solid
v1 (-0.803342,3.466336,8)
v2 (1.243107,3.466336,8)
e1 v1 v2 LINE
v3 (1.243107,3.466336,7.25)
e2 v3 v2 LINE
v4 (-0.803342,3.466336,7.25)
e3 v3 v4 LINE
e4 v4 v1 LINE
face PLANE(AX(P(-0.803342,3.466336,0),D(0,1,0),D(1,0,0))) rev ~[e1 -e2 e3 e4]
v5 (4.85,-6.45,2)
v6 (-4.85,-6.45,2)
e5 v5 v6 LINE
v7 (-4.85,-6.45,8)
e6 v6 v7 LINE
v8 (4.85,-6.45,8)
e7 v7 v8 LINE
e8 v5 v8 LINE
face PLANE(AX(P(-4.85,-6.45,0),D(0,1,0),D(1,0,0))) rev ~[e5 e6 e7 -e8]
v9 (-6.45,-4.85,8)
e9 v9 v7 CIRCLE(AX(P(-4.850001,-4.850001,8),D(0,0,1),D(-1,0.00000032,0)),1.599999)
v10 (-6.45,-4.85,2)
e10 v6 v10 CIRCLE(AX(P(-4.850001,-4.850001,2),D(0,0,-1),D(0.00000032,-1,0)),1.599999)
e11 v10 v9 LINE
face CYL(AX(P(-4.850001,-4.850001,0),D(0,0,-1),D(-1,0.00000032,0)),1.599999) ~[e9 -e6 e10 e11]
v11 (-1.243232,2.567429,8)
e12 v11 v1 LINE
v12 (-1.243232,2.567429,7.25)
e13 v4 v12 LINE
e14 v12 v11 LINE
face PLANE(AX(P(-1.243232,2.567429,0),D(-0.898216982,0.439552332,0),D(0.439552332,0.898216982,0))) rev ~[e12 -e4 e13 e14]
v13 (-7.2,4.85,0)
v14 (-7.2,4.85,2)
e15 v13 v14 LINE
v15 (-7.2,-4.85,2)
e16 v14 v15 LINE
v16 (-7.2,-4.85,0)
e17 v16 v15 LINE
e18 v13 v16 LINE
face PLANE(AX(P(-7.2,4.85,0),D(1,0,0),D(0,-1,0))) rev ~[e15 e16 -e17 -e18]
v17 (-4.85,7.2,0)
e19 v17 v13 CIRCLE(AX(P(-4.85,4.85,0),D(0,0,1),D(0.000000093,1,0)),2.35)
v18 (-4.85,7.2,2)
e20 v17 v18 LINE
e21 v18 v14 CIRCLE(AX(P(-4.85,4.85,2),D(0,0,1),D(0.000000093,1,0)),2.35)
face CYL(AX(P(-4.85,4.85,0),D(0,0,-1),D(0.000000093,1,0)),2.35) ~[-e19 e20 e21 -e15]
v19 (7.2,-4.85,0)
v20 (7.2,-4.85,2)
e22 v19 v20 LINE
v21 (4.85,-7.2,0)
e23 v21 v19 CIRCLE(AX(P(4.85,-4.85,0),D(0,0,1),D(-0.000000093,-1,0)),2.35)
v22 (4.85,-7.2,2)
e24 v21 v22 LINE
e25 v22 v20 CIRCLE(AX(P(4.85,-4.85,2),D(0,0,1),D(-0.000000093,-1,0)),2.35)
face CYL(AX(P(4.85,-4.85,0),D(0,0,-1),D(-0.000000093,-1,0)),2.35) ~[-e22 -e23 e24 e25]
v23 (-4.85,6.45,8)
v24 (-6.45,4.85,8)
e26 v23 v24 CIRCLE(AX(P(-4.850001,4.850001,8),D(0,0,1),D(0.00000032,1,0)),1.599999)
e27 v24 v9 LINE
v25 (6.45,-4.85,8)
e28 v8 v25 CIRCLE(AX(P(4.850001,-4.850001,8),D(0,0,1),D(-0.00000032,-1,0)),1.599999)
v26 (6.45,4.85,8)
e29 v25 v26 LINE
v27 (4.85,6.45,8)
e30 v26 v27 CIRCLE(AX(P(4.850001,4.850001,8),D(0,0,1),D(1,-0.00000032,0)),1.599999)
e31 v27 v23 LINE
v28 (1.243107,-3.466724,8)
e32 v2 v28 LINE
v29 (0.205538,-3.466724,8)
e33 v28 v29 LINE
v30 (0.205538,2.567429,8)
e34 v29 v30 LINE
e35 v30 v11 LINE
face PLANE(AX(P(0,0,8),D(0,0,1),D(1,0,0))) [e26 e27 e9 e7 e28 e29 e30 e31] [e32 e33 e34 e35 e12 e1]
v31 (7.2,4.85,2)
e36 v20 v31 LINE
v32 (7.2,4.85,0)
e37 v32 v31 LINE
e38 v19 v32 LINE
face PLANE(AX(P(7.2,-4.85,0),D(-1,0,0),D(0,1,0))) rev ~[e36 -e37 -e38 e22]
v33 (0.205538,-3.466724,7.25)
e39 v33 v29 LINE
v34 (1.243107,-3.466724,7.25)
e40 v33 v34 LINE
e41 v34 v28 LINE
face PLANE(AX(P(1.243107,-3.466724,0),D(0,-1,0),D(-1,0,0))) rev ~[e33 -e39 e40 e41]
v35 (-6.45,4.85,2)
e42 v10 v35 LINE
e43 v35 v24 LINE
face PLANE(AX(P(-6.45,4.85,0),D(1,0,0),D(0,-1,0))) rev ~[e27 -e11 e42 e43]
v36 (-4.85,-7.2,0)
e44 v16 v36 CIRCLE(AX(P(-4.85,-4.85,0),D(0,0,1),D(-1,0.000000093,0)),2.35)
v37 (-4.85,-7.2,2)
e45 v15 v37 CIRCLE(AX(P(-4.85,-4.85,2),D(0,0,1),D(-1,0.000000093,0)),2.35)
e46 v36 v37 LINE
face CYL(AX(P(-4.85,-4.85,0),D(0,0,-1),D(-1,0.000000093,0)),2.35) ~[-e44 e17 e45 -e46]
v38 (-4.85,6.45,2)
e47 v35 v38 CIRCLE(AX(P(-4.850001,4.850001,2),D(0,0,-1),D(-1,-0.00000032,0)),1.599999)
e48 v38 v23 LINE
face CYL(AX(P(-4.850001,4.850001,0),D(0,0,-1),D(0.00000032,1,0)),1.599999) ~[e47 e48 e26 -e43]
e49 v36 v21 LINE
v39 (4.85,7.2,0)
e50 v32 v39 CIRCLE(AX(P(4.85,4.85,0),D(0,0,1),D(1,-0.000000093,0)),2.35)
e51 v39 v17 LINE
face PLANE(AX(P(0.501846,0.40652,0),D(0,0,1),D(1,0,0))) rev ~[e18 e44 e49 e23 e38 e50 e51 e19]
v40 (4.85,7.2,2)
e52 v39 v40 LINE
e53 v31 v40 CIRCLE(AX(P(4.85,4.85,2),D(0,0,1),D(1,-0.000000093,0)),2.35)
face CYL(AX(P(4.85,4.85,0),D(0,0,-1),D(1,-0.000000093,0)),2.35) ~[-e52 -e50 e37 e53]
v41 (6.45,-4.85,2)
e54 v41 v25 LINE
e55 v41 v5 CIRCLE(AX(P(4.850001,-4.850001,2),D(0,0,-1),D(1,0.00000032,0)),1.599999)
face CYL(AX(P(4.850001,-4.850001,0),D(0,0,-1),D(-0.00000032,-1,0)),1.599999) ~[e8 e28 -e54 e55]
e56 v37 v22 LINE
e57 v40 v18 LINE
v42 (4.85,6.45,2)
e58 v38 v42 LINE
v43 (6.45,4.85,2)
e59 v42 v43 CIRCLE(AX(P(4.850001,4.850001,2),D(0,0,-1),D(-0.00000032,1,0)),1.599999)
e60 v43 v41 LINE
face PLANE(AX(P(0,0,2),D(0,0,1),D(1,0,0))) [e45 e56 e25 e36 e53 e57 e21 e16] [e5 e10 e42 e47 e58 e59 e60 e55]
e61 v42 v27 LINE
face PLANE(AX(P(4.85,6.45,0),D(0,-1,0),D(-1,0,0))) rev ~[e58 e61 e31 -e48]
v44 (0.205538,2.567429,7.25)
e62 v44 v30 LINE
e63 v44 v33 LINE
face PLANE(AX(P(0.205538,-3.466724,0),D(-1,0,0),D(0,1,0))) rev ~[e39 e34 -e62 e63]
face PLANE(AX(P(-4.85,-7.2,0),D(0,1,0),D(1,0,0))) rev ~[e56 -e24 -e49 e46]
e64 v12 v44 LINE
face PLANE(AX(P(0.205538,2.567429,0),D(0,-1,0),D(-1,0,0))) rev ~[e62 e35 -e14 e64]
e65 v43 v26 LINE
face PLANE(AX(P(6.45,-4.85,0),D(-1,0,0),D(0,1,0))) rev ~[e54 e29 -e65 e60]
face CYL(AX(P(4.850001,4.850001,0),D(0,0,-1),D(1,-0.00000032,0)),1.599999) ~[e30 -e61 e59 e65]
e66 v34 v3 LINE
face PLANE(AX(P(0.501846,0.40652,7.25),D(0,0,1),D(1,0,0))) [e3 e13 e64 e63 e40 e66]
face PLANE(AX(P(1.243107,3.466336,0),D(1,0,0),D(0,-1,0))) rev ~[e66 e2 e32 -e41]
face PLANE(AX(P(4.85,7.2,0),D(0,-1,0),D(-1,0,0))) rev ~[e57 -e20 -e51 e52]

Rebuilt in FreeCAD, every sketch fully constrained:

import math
import FreeCAD as App
import Part
import Sketcher
Q = App.Units.Quantity

doc = App.newDocument("Part")
params = doc.addObject("Spreadsheet::Sheet", "Params")
for row, (alias, value) in enumerate([
    ("sketch1_radius", "1.599999 mm"),
    ("sketch1_radius2", "2.35 mm"),
    ("sketch1_width", "9.7 mm"),
    ("pad1_length", "2 mm"),
    ("sketch2_radius", "1.599999 mm"),
    ("sketch2_width", "9.7 mm"),
    ("pad2_length", "8 mm"),
    ("pad3_length", "7.25 mm"),
], start=1):
    params.set(f"A{row}", alias)
    params.set(f"B{row}", "=" + value)
    params.setAlias(f"B{row}", alias)

body = doc.addObject("PartDesign::Body", "Body")

sketch1 = doc.addObject("Sketcher::SketchObject", "Sketch")
body.addObject(sketch1)
sketch1.AttachmentSupport = (doc.XY_Plane, [""])
sketch1.MapMode = "FlatFace"
sketch1.addGeometry(Part.LineSegment(App.Vector(4.8, 7.2, 0), App.Vector(-4.8, 7.2, 0)), False)
sketch1.addGeometry(Part.ArcOfCircle(Part.Circle(App.Vector(-4.9, 4.9, 0), App.Vector(0, 0, 1), 2.3), math.radians(90), math.radians(180)), False)
sketch1.addGeometry(Part.LineSegment(App.Vector(-7.2, 4.8, 0), App.Vector(-7.2, -4.8, 0)), False)
sketch1.addGeometry(Part.ArcOfCircle(Part.Circle(App.Vector(-4.9, -4.9, 0), App.Vector(0, 0, 1), 2.3), math.radians(180), math.radians(270)), False)
sketch1.addGeometry(Part.LineSegment(App.Vector(-4.8, -7.2, 0), App.Vector(4.8, -7.2, 0)), False)
sketch1.addGeometry(Part.ArcOfCircle(Part.Circle(App.Vector(4.9, -4.9, 0), App.Vector(0, 0, 1), 2.3), math.radians(-90), math.radians(0)), False)
sketch1.addGeometry(Part.LineSegment(App.Vector(7.2, -4.8, 0), App.Vector(7.2, 4.8, 0)), False)
sketch1.addGeometry(Part.ArcOfCircle(Part.Circle(App.Vector(4.9, 4.9, 0), App.Vector(0, 0, 1), 2.3), math.radians(0), math.radians(90)), False)
sketch1.addGeometry(Part.LineSegment(App.Vector(6.5, 4.8, 0), App.Vector(6.5, -4.8, 0)), False)
sketch1.addGeometry(Part.ArcOfCircle(Part.Circle(App.Vector(4.9, -4.9, 0), App.Vector(0, 0, 1), 1.6), math.radians(-90), math.radians(0)), False)
sketch1.addGeometry(Part.LineSegment(App.Vector(4.8, -6.5, 0), App.Vector(-4.8, -6.5, 0)), False)
sketch1.addGeometry(Part.ArcOfCircle(Part.Circle(App.Vector(-4.9, -4.9, 0), App.Vector(0, 0, 1), 1.6), math.radians(180), math.radians(270)), False)
sketch1.addGeometry(Part.LineSegment(App.Vector(-6.5, -4.8, 0), App.Vector(-6.5, 4.8, 0)), False)
sketch1.addGeometry(Part.ArcOfCircle(Part.Circle(App.Vector(-4.9, 4.9, 0), App.Vector(0, 0, 1), 1.6), math.radians(90), math.radians(180)), False)
sketch1.addGeometry(Part.LineSegment(App.Vector(-4.8, 6.5, 0), App.Vector(4.8, 6.5, 0)), False)
sketch1.addGeometry(Part.ArcOfCircle(Part.Circle(App.Vector(4.9, 4.9, 0), App.Vector(0, 0, 1), 1.6), math.radians(0), math.radians(90)), False)
sketch1.addConstraint(Sketcher.Constraint("Tangent", 0, 2, 1, 1))
sketch1.addConstraint(Sketcher.Constraint("Tangent", 1, 2, 2, 1))
sketch1.addConstraint(Sketcher.Constraint("Tangent", 2, 2, 3, 1))
sketch1.addConstraint(Sketcher.Constraint("Tangent", 3, 2, 4, 1))
sketch1.addConstraint(Sketcher.Constraint("Tangent", 4, 2, 5, 1))
sketch1.addConstraint(Sketcher.Constraint("Tangent", 5, 2, 6, 1))
sketch1.addConstraint(Sketcher.Constraint("Tangent", 6, 2, 7, 1))
sketch1.addConstraint(Sketcher.Constraint("Tangent", 7, 2, 0, 1))
sketch1.addConstraint(Sketcher.Constraint("Tangent", 8, 2, 9, 2))
sketch1.addConstraint(Sketcher.Constraint("Tangent", 9, 1, 10, 1))
sketch1.addConstraint(Sketcher.Constraint("Tangent", 10, 2, 11, 2))
sketch1.addConstraint(Sketcher.Constraint("Tangent", 11, 1, 12, 1))
sketch1.addConstraint(Sketcher.Constraint("Tangent", 12, 2, 13, 2))
sketch1.addConstraint(Sketcher.Constraint("Tangent", 13, 1, 14, 1))
sketch1.addConstraint(Sketcher.Constraint("Tangent", 14, 2, 15, 2))
sketch1.addConstraint(Sketcher.Constraint("Tangent", 15, 1, 8, 1))
sketch1.addConstraint(Sketcher.Constraint("Horizontal", 0))
sketch1.addConstraint(Sketcher.Constraint("Vertical", 2))
sketch1.addConstraint(Sketcher.Constraint("Horizontal", 4))
sketch1.addConstraint(Sketcher.Constraint("Vertical", 6))
sketch1.addConstraint(Sketcher.Constraint("Vertical", 8))
sketch1.addConstraint(Sketcher.Constraint("Horizontal", 10))
sketch1.addConstraint(Sketcher.Constraint("Vertical", 12))
sketch1.addConstraint(Sketcher.Constraint("Horizontal", 14))
sketch1.addConstraint(Sketcher.Constraint("Coincident", 9, 3, 5, 3))
sketch1.addConstraint(Sketcher.Constraint("Coincident", 11, 3, 3, 3))
sketch1.addConstraint(Sketcher.Constraint("Coincident", 13, 3, 1, 3))
sketch1.addConstraint(Sketcher.Constraint("Equal", 1, 3))
sketch1.addConstraint(Sketcher.Constraint("Equal", 3, 5))
sketch1.addConstraint(Sketcher.Constraint("Equal", 5, 7))
sketch1.addConstraint(Sketcher.Constraint("Equal", 13, 15))
sketch1.addConstraint(Sketcher.Constraint("Symmetric", 1, 3, 5, 3, -1, 1))
sketch1.addConstraint(Sketcher.Constraint("Equal", 14, 2))
sketch1.addConstraint(Sketcher.Constraint("Radius", 9, Q("1.599999 mm")))
sketch1.addConstraint(Sketcher.Constraint("Radius", 1, Q("2.35 mm")))
sketch1.addConstraint(Sketcher.Constraint("DistanceX", 0, 2, 0, 1, Q("9.7 mm")))
sketch1.setExpression("Constraints[33]", "Params.sketch1_radius")
sketch1.setExpression("Constraints[34]", "Params.sketch1_radius2")
sketch1.setExpression("Constraints[35]", "Params.sketch1_width")
pad1 = doc.addObject("PartDesign::Pad", "Pad")
body.addObject(pad1)
pad1.Profile = sketch1
pad1.setExpression("Length", "Params.pad1_length")

sketch2 = doc.addObject("Sketcher::SketchObject", "Sketch001")
body.addObject(sketch2)
sketch2.AttachmentSupport = (doc.XY_Plane, [""])
sketch2.MapMode = "FlatFace"
sketch2.addGeometry(Part.LineSegment(App.Vector(-4.8, -6.5, 0), App.Vector(4.8, -6.5, 0)), False)
sketch2.addGeometry(Part.ArcOfCircle(Part.Circle(App.Vector(4.9, -4.9, 0), App.Vector(0, 0, 1), 1.6), math.radians(-90), math.radians(0)), False)
sketch2.addGeometry(Part.LineSegment(App.Vector(6.5, -4.8, 0), App.Vector(6.5, 4.8, 0)), False)
sketch2.addGeometry(Part.ArcOfCircle(Part.Circle(App.Vector(4.9, 4.9, 0), App.Vector(0, 0, 1), 1.6), math.radians(0), math.radians(90)), False)
sketch2.addGeometry(Part.LineSegment(App.Vector(4.8, 6.5, 0), App.Vector(-4.8, 6.5, 0)), False)
sketch2.addGeometry(Part.ArcOfCircle(Part.Circle(App.Vector(-4.9, 4.9, 0), App.Vector(0, 0, 1), 1.6), math.radians(90), math.radians(180)), False)
sketch2.addGeometry(Part.LineSegment(App.Vector(-6.5, 4.8, 0), App.Vector(-6.5, -4.8, 0)), False)
sketch2.addGeometry(Part.ArcOfCircle(Part.Circle(App.Vector(-4.9, -4.9, 0), App.Vector(0, 0, 1), 1.6), math.radians(180), math.radians(270)), False)
sketch2.addGeometry(Part.LineSegment(App.Vector(1.2, 3.5, 0), App.Vector(1.2, -3.5, 0)), False)
sketch2.addGeometry(Part.LineSegment(App.Vector(1.2, -3.5, 0), App.Vector(0.2, -3.5, 0)), False)
sketch2.addGeometry(Part.LineSegment(App.Vector(0.2, -3.5, 0), App.Vector(0.2, 2.6, 0)), False)
sketch2.addGeometry(Part.LineSegment(App.Vector(0.2, 2.6, 0), App.Vector(-1.2, 2.6, 0)), False)
sketch2.addGeometry(Part.LineSegment(App.Vector(-1.2, 2.6, 0), App.Vector(-0.8, 3.5, 0)), False)
sketch2.addGeometry(Part.LineSegment(App.Vector(-0.8, 3.5, 0), App.Vector(1.2, 3.5, 0)), False)
sketch2.addConstraint(Sketcher.Constraint("Tangent", 0, 2, 1, 1))
sketch2.addConstraint(Sketcher.Constraint("Tangent", 1, 2, 2, 1))
sketch2.addConstraint(Sketcher.Constraint("Tangent", 2, 2, 3, 1))
sketch2.addConstraint(Sketcher.Constraint("Tangent", 3, 2, 4, 1))
sketch2.addConstraint(Sketcher.Constraint("Tangent", 4, 2, 5, 1))
sketch2.addConstraint(Sketcher.Constraint("Tangent", 5, 2, 6, 1))
sketch2.addConstraint(Sketcher.Constraint("Tangent", 6, 2, 7, 1))
sketch2.addConstraint(Sketcher.Constraint("Tangent", 7, 2, 0, 1))
sketch2.addConstraint(Sketcher.Constraint("Coincident", 8, 2, 9, 1))
sketch2.addConstraint(Sketcher.Constraint("Coincident", 9, 2, 10, 1))
sketch2.addConstraint(Sketcher.Constraint("Coincident", 10, 2, 11, 1))
sketch2.addConstraint(Sketcher.Constraint("Coincident", 11, 2, 12, 1))
sketch2.addConstraint(Sketcher.Constraint("Coincident", 12, 2, 13, 1))
sketch2.addConstraint(Sketcher.Constraint("Coincident", 13, 2, 8, 1))
sketch2.addConstraint(Sketcher.Constraint("Horizontal", 0))
sketch2.addConstraint(Sketcher.Constraint("Vertical", 2))
sketch2.addConstraint(Sketcher.Constraint("Horizontal", 4))
sketch2.addConstraint(Sketcher.Constraint("Vertical", 6))
sketch2.addConstraint(Sketcher.Constraint("Vertical", 8))
sketch2.addConstraint(Sketcher.Constraint("Horizontal", 9))
sketch2.addConstraint(Sketcher.Constraint("Vertical", 10))
sketch2.addConstraint(Sketcher.Constraint("Horizontal", 11))
sketch2.addConstraint(Sketcher.Constraint("Horizontal", 13))
sketch2.addConstraint(Sketcher.Constraint("Equal", 1, 3))
sketch2.addConstraint(Sketcher.Constraint("Equal", 3, 5))
sketch2.addConstraint(Sketcher.Constraint("Equal", 5, 7))
sketch2.addConstraint(Sketcher.Constraint("Symmetric", 1, 3, 5, 3, -1, 1))
sketch2.addConstraint(Sketcher.Constraint("Equal", 4, 2))
sketch2.addConstraint(Sketcher.Constraint("Radius", 1, Q("1.599999 mm")))
sketch2.addConstraint(Sketcher.Constraint("DistanceX", 0, 1, 0, 2, Q("9.7 mm")))
sketch2.addConstraint(Sketcher.Constraint("DistanceX", 9, 2, 9, 1, Q("1.037569 mm")))
sketch2.addConstraint(Sketcher.Constraint("DistanceX", 11, 2, 11, 1, Q("1.44877 mm")))
sketch2.addConstraint(Sketcher.Constraint("DistanceX", 13, 1, 13, 2, Q("2.046449 mm")))
sketch2.addConstraint(Sketcher.Constraint("DistanceY", 8, 2, 8, 1, Q("6.93306 mm")))
sketch2.addConstraint(Sketcher.Constraint("Distance", 12, Q("1.000768 mm")))
sketch2.addConstraint(Sketcher.Constraint("DistanceY", -1, 1, 10, 2, Q("2.567429 mm")))
sketch2.addConstraint(Sketcher.Constraint("DistanceX", 11, 2, -1, 1, Q("1.243232 mm")))
sketch2.setExpression("Constraints[28]", "Params.sketch2_radius")
sketch2.setExpression("Constraints[29]", "Params.sketch2_width")
pad2 = doc.addObject("PartDesign::Pad", "Pad001")
body.addObject(pad2)
pad2.Profile = sketch2
pad2.setExpression("Length", "Params.pad2_length")

sketch3 = doc.addObject("Sketcher::SketchObject", "Sketch002")
body.addObject(sketch3)
sketch3.AttachmentSupport = (doc.XY_Plane, [""])
sketch3.MapMode = "FlatFace"
sketch3.addGeometry(Part.LineSegment(App.Vector(0.2, 2.6, 0), App.Vector(0.2, -3.5, 0)), False)
sketch3.addGeometry(Part.LineSegment(App.Vector(0.2, -3.5, 0), App.Vector(1.2, -3.5, 0)), False)
sketch3.addGeometry(Part.LineSegment(App.Vector(1.2, -3.5, 0), App.Vector(1.2, 3.5, 0)), False)
sketch3.addGeometry(Part.LineSegment(App.Vector(1.2, 3.5, 0), App.Vector(-0.8, 3.5, 0)), False)
sketch3.addGeometry(Part.LineSegment(App.Vector(-0.8, 3.5, 0), App.Vector(-1.2, 2.6, 0)), False)
sketch3.addGeometry(Part.LineSegment(App.Vector(-1.2, 2.6, 0), App.Vector(0.2, 2.6, 0)), False)
sketch3.addConstraint(Sketcher.Constraint("Coincident", 0, 2, 1, 1))
sketch3.addConstraint(Sketcher.Constraint("Coincident", 1, 2, 2, 1))
sketch3.addConstraint(Sketcher.Constraint("Coincident", 2, 2, 3, 1))
sketch3.addConstraint(Sketcher.Constraint("Coincident", 3, 2, 4, 1))
sketch3.addConstraint(Sketcher.Constraint("Coincident", 4, 2, 5, 1))
sketch3.addConstraint(Sketcher.Constraint("Coincident", 5, 2, 0, 1))
sketch3.addConstraint(Sketcher.Constraint("Vertical", 0))
sketch3.addConstraint(Sketcher.Constraint("Horizontal", 1))
sketch3.addConstraint(Sketcher.Constraint("Vertical", 2))
sketch3.addConstraint(Sketcher.Constraint("Horizontal", 3))
sketch3.addConstraint(Sketcher.Constraint("Horizontal", 5))
sketch3.addConstraint(Sketcher.Constraint("DistanceX", 1, 1, 1, 2, Q("1.037569 mm")))
sketch3.addConstraint(Sketcher.Constraint("DistanceX", 3, 2, 3, 1, Q("2.046449 mm")))
sketch3.addConstraint(Sketcher.Constraint("DistanceX", 5, 1, 5, 2, Q("1.44877 mm")))
sketch3.addConstraint(Sketcher.Constraint("DistanceY", 2, 1, 2, 2, Q("6.93306 mm")))
sketch3.addConstraint(Sketcher.Constraint("Distance", 4, Q("1.000768 mm")))
sketch3.addConstraint(Sketcher.Constraint("DistanceX", 3, 2, -1, 1, Q("0.803342 mm")))
sketch3.addConstraint(Sketcher.Constraint("DistanceY", -1, 1, 4, 2, Q("2.567429 mm")))
pad3 = doc.addObject("PartDesign::Pad", "Pad002")
body.addObject(pad3)
pad3.Profile = sketch3
pad3.setExpression("Length", "Params.pad3_length")

doc.recompute()
